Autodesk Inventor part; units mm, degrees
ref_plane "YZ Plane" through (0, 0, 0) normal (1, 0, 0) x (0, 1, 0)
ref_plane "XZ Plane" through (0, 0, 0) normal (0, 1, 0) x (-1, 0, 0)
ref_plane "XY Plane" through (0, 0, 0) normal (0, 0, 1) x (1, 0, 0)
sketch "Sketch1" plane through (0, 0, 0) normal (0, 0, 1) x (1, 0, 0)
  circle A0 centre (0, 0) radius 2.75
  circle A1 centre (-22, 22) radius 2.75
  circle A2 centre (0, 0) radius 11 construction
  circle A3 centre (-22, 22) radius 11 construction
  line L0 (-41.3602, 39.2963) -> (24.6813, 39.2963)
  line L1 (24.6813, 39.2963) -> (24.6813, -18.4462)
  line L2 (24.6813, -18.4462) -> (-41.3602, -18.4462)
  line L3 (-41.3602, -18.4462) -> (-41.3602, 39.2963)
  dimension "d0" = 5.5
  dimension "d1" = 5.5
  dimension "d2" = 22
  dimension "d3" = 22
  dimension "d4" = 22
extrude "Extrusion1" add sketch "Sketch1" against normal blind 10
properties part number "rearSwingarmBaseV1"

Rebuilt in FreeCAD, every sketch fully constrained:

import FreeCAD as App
import Part
import Sketcher

doc = App.newDocument("Part")
params = doc.addObject("Spreadsheet::Sheet", "Params")
for row, (alias, value) in enumerate([
    ("sketch1_diameter", "5.5 mm"),
    ("pad1_length", "10 mm"),
], start=1):
    params.set(f"A{row}", alias)
    params.set(f"B{row}", "=" + value)
    params.setAlias(f"B{row}", alias)

body = doc.addObject("PartDesign::Body", "Body")

# Sketch on XY plane
sketch1 = body.newObject("Sketcher::SketchObject", "Sketch")
sketch1.AttachmentSupport = (doc.getObject("XY_Plane"), [""])
sketch1.MapMode = "FlatFace"
sketch1.addGeometry([
    Part.LineSegment(App.Vector(24.7, 39.3, 0), App.Vector(-41.4, 39.3, 0)),  # 0
    Part.LineSegment(App.Vector(-41.4, 39.3, 0), App.Vector(-41.4, -18.4, 0)),  # 1
    Part.LineSegment(App.Vector(-41.4, -18.4, 0), App.Vector(24.7, -18.4, 0)),  # 2
    Part.LineSegment(App.Vector(24.7, -18.4, 0), App.Vector(24.7, 39.3, 0)),  # 3
    Part.Circle(App.Vector(0, 0, 0), App.Vector(0, 0, 1), 2.8),  # 4
    Part.Circle(App.Vector(-22, 22, 0), App.Vector(0, 0, 1), 2.8),  # 5
], False)
sketch1.addConstraint([
    Sketcher.Constraint("Coincident", 0, 2, 1, 1),
    Sketcher.Constraint("Coincident", 1, 2, 2, 1),
    Sketcher.Constraint("Coincident", 2, 2, 3, 1),
    Sketcher.Constraint("Coincident", 3, 2, 0, 1),
    Sketcher.Constraint("Horizontal", 0),
    Sketcher.Constraint("Vertical", 1),
    Sketcher.Constraint("Horizontal", 2),
    Sketcher.Constraint("Vertical", 3),
    Sketcher.Constraint("Coincident", 4, 3, -1, 1),
    Sketcher.Constraint("Equal", 4, 5),
    Sketcher.Constraint("Diameter", 4, 5.5),
    Sketcher.Constraint("DistanceX", 5, 3, -1, 1, 22.0),
    Sketcher.Constraint("DistanceY", -1, 1, 5, 3, 22.0),
    Sketcher.Constraint("DistanceX", 0, 2, 0, 1, 66.0415),
    Sketcher.Constraint("DistanceY", 1, 2, 1, 1, 57.7425),
    Sketcher.Constraint("DistanceX", 0, 2, -1, 1, 41.3602),
    Sketcher.Constraint("DistanceY", -1, 1, 0, 2, 39.2963),
])
sketch1.setExpression("Constraints[10]", "Params.sketch1_diameter")
pad1 = body.newObject("PartDesign::Pad", "Pad")
pad1.Profile = sketch1
pad1.setExpression("Length", "Params.pad1_length")
pad1.Reversed = True

doc.recompute()
